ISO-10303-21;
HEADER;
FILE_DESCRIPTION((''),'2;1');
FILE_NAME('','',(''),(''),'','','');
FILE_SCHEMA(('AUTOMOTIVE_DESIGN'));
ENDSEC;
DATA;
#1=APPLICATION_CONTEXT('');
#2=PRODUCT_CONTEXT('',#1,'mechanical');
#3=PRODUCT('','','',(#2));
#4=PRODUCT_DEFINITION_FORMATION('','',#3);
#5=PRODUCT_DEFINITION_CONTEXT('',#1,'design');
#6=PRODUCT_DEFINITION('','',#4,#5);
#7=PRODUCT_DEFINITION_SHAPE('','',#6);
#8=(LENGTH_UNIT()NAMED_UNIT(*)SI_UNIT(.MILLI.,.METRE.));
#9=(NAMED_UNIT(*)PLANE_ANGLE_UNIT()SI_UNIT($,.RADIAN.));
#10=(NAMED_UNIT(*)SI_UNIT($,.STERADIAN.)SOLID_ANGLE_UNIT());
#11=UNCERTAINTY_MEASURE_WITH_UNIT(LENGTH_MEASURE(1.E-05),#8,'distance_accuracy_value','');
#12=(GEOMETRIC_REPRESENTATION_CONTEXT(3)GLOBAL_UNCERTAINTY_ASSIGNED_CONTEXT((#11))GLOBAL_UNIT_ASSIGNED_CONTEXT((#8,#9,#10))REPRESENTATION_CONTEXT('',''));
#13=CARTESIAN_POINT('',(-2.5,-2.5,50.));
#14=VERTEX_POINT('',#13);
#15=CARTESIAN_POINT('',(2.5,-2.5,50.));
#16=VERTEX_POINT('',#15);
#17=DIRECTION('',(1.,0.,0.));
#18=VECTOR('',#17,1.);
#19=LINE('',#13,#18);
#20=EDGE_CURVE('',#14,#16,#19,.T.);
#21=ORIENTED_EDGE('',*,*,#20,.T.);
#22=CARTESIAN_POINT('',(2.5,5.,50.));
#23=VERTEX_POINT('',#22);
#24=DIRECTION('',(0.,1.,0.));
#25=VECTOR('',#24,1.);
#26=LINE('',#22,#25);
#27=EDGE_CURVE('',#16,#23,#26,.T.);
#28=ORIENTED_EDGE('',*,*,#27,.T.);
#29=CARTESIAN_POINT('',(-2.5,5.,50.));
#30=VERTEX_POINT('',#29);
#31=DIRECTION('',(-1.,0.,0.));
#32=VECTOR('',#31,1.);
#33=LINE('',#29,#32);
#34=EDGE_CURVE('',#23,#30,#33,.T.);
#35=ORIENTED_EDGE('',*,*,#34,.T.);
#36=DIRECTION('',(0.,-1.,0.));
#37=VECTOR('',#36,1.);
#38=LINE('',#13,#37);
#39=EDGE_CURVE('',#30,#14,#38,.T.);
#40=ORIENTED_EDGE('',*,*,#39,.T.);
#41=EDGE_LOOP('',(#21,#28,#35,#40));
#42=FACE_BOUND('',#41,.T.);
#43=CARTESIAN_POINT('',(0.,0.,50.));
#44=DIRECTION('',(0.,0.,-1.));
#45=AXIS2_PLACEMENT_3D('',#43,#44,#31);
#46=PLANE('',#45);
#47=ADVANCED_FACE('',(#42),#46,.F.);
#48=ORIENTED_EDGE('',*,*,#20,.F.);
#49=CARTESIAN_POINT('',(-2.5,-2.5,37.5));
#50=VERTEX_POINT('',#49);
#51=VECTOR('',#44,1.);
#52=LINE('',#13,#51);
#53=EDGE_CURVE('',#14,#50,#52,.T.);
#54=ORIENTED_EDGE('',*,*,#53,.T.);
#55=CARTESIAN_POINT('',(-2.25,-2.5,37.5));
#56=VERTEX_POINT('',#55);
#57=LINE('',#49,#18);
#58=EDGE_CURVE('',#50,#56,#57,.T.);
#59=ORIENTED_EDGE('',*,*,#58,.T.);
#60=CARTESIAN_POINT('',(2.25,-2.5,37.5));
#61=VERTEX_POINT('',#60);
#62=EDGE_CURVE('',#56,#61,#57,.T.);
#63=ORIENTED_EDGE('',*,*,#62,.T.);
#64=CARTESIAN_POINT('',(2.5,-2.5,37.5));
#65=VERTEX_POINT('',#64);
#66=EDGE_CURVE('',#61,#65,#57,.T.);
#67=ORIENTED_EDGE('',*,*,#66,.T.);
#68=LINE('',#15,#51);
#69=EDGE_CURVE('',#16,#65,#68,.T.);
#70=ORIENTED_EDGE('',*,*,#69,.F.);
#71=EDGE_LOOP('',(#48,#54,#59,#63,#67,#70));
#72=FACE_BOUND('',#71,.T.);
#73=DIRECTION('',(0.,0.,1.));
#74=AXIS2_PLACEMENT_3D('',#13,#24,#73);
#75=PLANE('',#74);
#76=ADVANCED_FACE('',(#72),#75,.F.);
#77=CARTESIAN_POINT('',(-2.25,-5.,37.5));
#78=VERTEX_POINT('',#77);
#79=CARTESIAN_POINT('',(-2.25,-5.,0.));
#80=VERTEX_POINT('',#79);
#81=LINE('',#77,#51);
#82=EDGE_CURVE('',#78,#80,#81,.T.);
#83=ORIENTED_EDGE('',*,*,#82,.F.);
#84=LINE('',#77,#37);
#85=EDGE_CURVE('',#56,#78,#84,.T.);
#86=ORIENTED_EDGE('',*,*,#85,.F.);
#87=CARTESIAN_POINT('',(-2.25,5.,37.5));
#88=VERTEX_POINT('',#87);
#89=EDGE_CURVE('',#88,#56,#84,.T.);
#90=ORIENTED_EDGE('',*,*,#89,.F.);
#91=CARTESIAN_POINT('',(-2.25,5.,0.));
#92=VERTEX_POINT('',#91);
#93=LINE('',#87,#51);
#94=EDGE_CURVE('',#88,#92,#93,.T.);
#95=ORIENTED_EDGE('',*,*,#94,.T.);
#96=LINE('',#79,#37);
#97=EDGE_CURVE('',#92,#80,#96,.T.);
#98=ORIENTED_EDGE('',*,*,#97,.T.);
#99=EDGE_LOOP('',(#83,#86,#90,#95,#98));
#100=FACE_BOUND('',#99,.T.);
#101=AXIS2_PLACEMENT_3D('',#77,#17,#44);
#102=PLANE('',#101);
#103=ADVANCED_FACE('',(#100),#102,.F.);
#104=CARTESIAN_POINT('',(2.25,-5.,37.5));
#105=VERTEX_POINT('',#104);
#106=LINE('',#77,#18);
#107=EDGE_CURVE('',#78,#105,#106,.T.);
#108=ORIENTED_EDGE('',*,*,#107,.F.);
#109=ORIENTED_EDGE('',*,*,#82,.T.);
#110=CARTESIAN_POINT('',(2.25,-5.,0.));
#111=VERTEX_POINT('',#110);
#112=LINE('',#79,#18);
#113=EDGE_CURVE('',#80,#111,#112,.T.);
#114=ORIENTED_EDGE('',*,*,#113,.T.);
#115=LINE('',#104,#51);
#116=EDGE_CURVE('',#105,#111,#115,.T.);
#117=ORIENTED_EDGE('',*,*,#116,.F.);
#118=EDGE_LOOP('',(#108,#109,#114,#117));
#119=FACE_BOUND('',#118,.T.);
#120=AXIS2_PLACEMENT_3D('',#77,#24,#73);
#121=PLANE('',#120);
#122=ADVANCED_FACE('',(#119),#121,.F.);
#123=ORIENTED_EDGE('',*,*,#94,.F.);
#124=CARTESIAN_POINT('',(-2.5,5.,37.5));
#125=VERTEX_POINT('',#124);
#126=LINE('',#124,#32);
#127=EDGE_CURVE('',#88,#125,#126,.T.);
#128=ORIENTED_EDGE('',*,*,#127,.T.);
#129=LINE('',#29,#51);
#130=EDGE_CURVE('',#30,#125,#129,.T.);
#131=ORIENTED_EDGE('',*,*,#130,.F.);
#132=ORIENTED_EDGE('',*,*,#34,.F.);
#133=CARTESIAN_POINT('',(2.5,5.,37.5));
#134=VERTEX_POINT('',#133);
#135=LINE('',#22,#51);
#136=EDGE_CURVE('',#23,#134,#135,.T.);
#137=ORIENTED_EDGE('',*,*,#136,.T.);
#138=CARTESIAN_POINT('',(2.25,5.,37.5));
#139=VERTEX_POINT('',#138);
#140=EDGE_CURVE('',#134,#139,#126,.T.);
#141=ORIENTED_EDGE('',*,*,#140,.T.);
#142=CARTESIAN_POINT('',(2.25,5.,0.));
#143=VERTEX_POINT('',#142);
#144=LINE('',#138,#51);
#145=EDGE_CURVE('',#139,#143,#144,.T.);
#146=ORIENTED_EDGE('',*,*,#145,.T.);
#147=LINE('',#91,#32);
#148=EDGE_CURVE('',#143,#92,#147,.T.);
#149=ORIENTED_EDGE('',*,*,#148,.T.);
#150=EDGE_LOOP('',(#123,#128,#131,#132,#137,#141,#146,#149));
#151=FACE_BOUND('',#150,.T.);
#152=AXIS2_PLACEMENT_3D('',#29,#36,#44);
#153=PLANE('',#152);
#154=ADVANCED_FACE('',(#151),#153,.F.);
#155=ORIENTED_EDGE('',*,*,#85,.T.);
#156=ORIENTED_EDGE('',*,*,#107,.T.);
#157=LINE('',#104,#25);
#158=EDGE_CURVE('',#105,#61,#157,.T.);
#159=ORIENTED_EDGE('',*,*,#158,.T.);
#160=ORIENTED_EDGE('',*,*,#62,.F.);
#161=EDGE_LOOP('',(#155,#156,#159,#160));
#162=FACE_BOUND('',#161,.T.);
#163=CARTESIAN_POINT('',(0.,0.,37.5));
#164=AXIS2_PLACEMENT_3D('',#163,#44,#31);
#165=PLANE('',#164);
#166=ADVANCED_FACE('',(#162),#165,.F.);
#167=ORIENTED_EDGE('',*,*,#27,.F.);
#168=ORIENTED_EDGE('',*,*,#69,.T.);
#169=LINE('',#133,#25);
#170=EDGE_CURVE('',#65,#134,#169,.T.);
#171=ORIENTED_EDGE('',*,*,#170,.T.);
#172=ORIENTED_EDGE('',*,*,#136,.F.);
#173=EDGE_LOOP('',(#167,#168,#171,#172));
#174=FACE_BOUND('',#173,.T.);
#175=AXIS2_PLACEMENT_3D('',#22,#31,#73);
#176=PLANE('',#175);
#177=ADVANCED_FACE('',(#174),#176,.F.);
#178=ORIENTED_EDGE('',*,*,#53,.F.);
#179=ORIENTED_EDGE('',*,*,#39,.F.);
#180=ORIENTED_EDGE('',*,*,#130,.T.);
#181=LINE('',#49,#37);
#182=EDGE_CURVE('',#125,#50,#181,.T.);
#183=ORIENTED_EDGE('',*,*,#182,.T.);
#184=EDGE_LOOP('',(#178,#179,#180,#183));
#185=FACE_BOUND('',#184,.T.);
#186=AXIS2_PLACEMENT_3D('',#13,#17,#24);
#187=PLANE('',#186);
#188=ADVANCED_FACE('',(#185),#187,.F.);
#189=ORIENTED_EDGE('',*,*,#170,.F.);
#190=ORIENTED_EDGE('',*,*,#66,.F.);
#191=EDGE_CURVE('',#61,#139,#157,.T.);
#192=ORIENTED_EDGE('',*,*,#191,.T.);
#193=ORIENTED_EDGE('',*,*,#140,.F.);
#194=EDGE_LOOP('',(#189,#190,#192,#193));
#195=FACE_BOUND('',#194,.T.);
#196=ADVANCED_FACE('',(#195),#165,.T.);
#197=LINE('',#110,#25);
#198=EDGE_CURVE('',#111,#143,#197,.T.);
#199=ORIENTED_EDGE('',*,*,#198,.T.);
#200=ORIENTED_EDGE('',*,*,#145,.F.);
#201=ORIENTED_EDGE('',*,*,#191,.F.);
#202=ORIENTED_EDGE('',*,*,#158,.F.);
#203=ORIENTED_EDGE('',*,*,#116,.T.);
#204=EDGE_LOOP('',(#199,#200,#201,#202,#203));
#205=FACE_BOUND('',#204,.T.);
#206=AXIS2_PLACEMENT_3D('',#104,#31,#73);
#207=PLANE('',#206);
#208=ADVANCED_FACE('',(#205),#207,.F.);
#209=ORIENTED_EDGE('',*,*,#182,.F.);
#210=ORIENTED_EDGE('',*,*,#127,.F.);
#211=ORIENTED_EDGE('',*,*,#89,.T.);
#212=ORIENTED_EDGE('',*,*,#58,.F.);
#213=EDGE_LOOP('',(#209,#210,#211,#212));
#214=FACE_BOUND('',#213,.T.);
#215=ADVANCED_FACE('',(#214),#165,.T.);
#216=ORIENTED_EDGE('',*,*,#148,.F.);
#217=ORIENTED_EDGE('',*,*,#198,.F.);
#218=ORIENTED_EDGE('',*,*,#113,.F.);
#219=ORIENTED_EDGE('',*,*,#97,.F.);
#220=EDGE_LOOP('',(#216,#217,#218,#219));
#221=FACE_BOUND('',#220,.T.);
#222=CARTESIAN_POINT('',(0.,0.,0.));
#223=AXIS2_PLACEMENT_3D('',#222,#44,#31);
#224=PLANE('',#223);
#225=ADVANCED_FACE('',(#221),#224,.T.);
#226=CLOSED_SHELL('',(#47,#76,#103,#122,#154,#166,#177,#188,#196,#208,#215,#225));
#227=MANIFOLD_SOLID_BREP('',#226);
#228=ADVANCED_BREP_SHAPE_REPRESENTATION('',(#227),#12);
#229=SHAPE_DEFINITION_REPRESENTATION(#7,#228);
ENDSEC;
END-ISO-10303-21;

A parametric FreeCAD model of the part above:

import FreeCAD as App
import Part
import Sketcher

doc = App.newDocument("Part")
body = doc.addObject("PartDesign::Body", "Body")

# Sketch on XY plane
sketch1 = body.newObject("Sketcher::SketchObject", "Sketch")
sketch1.AttachmentSupport = (doc.getObject("XY_Plane"), [""])
sketch1.MapMode = "FlatFace"
sketch1.AttachmentOffset = App.Placement(App.Vector(0, 0, 37.5), App.Rotation())
sketch1.addGeometry(Part.LineSegment(App.Vector(-2.5, 5, 0), App.Vector(-2.5, -2.5, 0)), False)
sketch1.addGeometry(Part.LineSegment(App.Vector(-2.5, -2.5, 0), App.Vector(2.5, -2.5, 0)), False)
sketch1.addGeometry(Part.LineSegment(App.Vector(2.5, -2.5, 0), App.Vector(2.5, 5, 0)), False)
sketch1.addGeometry(Part.LineSegment(App.Vector(2.5, 5, 0), App.Vector(-2.5, 5, 0)), False)
sketch1.addConstraint(Sketcher.Constraint("Coincident", 0, 2, 1, 1))
sketch1.addConstraint(Sketcher.Constraint("Coincident", 1, 2, 2, 1))
sketch1.addConstraint(Sketcher.Constraint("Coincident", 2, 2, 3, 1))
sketch1.addConstraint(Sketcher.Constraint("Coincident", 3, 2, 0, 1))
sketch1.addConstraint(Sketcher.Constraint("Vertical", 0))
sketch1.addConstraint(Sketcher.Constraint("Horizontal", 1))
sketch1.addConstraint(Sketcher.Constraint("Vertical", 2))
sketch1.addConstraint(Sketcher.Constraint("Horizontal", 3))
sketch1.addConstraint(Sketcher.Constraint("DistanceX", 1, 1, 1, 2, 5.0))
sketch1.addConstraint(Sketcher.Constraint("DistanceY", 0, 2, 0, 1, 7.5))
sketch1.addConstraint(Sketcher.Constraint("DistanceY", -1, 1, 2, 2, 5.0))
sketch1.addConstraint(Sketcher.Constraint("DistanceX", 0, 2, -1, 1, 2.5))
pad1 = body.newObject("PartDesign::Pad", "Pad")
pad1.Profile = sketch1
pad1.Length = 12.5

# Sketch on XY plane
sketch2 = body.newObject("Sketcher::SketchObject", "Sketch001")
sketch2.AttachmentSupport = (doc.getObject("XY_Plane"), [""])
sketch2.MapMode = "FlatFace"
sketch2.addGeometry(Part.LineSegment(App.Vector(-2.25, 5, 0), App.Vector(-2.25, -5, 0)), False)
sketch2.addGeometry(Part.LineSegment(App.Vector(-2.25, -5, 0), App.Vector(2.25, -5, 0)), False)
sketch2.addGeometry(Part.LineSegment(App.Vector(2.25, -5, 0), App.Vector(2.25, 5, 0)), False)
sketch2.addGeometry(Part.LineSegment(App.Vector(2.25, 5, 0), App.Vector(-2.25, 5, 0)), False)
sketch2.addConstraint(Sketcher.Constraint("Coincident", 0, 2, 1, 1))
sketch2.addConstraint(Sketcher.Constraint("Coincident", 1, 2, 2, 1))
sketch2.addConstraint(Sketcher.Constraint("Coincident", 2, 2, 3, 1))
sketch2.addConstraint(Sketcher.Constraint("Coincident", 3, 2, 0, 1))
sketch2.addConstraint(Sketcher.Constraint("Vertical", 0))
sketch2.addConstraint(Sketcher.Constraint("Horizontal", 1))
sketch2.addConstraint(Sketcher.Constraint("Vertical", 2))
sketch2.addConstraint(Sketcher.Constraint("Horizontal", 3))
sketch2.addConstraint(Sketcher.Constraint("Symmetric", 0, 2, 2, 2, -1, 1))
sketch2.addConstraint(Sketcher.Constraint("DistanceY", 0, 2, 0, 1, 10.0))
sketch2.addConstraint(Sketcher.Constraint("DistanceX", 1, 1, 1, 2, 4.5))
pad2 = body.newObject("PartDesign::Pad", "Pad001")
pad2.Profile = sketch2
pad2.Length = 37.5

doc.recompute()
